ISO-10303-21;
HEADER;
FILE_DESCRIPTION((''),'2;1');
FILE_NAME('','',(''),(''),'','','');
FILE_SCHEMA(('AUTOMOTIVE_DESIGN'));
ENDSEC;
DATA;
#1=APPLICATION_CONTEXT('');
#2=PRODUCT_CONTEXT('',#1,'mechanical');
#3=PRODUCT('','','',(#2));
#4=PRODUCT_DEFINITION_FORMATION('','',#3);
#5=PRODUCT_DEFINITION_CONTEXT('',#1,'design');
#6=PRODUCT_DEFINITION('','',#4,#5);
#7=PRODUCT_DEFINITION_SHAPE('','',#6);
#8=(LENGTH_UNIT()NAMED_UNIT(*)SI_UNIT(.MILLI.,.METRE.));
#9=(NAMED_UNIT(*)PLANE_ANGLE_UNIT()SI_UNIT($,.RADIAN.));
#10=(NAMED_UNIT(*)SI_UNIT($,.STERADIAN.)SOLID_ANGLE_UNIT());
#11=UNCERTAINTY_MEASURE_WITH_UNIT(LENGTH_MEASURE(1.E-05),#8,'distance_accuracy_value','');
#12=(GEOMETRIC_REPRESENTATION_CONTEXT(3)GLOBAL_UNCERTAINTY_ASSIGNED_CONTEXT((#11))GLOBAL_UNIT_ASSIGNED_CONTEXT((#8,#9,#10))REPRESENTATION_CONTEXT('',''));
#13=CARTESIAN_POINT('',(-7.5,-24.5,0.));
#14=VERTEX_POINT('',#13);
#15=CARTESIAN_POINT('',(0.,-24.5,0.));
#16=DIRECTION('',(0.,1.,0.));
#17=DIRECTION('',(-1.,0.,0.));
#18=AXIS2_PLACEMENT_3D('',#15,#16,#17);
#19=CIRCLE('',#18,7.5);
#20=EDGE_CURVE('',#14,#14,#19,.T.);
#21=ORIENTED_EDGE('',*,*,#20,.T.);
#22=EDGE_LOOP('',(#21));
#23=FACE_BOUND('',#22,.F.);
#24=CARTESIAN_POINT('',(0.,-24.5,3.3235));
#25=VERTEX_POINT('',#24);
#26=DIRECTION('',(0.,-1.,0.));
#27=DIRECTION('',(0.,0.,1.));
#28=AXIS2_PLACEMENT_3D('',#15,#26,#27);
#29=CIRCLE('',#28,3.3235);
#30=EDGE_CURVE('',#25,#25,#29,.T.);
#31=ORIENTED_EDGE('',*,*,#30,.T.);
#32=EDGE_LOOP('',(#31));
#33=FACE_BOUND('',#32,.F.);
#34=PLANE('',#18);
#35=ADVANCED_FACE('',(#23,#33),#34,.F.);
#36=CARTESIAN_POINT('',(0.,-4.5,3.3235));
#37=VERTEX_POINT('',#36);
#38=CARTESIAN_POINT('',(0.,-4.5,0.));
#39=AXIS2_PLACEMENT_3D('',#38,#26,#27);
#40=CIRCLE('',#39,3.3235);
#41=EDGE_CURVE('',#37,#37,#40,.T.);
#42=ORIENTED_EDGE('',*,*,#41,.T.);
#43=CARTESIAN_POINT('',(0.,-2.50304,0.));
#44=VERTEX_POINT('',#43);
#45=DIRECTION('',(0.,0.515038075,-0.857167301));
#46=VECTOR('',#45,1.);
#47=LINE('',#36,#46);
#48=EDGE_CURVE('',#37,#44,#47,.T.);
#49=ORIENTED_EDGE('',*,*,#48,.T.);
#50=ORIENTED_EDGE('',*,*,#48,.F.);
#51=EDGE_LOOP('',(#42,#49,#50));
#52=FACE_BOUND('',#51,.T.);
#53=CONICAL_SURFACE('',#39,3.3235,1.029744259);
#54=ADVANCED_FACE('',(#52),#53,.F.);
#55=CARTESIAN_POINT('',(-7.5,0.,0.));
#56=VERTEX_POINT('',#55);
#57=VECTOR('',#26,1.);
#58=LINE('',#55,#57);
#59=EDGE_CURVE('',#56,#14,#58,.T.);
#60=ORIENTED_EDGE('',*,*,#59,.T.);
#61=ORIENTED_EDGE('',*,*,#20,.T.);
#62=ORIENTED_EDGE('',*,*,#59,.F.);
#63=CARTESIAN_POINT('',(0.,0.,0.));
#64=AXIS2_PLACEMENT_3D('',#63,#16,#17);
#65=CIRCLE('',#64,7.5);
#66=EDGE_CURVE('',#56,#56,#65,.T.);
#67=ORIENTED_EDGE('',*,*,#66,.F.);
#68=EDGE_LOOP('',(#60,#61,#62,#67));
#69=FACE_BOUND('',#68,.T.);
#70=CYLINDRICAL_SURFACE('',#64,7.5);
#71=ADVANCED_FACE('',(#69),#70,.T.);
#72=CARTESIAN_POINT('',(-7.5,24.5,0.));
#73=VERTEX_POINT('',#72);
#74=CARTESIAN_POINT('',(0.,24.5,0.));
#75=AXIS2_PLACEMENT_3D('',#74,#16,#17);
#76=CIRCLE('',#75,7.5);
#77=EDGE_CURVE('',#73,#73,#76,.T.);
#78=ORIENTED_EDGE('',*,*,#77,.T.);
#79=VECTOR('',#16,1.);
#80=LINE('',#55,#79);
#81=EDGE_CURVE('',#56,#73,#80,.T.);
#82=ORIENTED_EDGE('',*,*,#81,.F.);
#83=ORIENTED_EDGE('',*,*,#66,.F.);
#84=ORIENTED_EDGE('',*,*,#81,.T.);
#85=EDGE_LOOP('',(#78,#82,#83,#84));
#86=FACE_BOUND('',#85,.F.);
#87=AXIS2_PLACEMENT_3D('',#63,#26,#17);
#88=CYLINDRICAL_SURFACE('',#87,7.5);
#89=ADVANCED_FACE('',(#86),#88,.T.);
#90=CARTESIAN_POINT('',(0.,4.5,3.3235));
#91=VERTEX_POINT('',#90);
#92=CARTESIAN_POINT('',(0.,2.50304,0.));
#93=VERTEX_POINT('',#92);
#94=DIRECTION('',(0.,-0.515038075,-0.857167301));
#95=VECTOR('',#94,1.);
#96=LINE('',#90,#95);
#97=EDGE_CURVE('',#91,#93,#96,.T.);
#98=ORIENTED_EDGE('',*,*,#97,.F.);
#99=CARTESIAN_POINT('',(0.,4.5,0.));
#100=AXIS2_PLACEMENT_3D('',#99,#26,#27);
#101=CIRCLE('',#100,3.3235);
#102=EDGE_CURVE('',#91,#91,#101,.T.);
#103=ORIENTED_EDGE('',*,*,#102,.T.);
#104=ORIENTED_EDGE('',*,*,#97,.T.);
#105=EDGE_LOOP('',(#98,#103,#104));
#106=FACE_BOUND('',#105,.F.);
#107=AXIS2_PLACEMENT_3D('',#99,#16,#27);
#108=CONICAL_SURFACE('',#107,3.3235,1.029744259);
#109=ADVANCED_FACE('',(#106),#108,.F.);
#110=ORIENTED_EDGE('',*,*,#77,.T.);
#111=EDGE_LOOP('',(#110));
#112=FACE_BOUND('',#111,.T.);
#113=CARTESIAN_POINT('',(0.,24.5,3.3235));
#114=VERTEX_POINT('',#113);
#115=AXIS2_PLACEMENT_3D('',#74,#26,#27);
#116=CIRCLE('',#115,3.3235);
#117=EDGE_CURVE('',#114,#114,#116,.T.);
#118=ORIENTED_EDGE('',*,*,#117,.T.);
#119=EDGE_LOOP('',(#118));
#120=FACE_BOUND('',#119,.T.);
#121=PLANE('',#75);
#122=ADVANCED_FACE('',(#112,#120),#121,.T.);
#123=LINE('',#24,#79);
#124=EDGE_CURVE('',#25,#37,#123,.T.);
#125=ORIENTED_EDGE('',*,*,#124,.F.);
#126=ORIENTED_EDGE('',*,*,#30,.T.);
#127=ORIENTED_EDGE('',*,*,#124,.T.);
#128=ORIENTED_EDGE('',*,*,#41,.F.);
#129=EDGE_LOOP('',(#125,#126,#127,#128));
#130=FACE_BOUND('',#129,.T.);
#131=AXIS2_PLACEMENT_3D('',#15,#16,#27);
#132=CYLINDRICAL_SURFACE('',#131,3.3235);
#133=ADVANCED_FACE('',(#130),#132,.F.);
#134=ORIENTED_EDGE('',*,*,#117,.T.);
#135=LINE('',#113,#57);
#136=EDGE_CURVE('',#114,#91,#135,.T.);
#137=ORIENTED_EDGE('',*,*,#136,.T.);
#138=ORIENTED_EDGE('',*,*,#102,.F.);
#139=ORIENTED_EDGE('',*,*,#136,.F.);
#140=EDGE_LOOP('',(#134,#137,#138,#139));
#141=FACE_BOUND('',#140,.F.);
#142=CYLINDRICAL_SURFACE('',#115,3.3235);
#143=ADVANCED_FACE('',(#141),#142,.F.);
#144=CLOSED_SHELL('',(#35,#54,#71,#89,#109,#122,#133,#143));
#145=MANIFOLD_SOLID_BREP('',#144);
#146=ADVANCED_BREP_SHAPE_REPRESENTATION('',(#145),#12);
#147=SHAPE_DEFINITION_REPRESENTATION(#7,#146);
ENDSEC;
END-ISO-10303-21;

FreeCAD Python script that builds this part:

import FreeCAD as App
import Part
import Sketcher
from FreeCAD import Vector

doc = App.newDocument("Part")
body = doc.addObject("PartDesign::Body", "Body")

# Sketch on XZ plane
sketch1 = body.newObject("Sketcher::SketchObject", "Sketch")
sketch1.AttachmentSupport = (doc.getObject("XZ_Plane"), [""])
sketch1.MapMode = "FlatFace"
sketch1.addGeometry(Part.Circle(Vector(0, 0, 0), Vector(0, 0, 1), 7.5), False)
sketch1.addConstraint([
    Sketcher.Constraint("Coincident", 0, 3, -1, 1),
    Sketcher.Constraint("Diameter", 0, 15.0),
])
pad1 = body.newObject("PartDesign::Pad", "Pad")
pad1.Profile = sketch1
pad1.Length = 49
pad1.Midplane = True

# Sketch on XZ plane
sketch2 = body.newObject("Sketcher::SketchObject", "Sketch001")
sketch2.AttachmentSupport = (doc.getObject("XZ_Plane"), [""])
sketch2.MapMode = "FlatFace"
sketch2.AttachmentOffset = App.Placement(Vector(0, 0, -24.5), App.Rotation())
sketch2.addGeometry(Part.Circle(Vector(0, 0, 0), Vector(0, 0, 1), 3.3235), False)
sketch2.addConstraint([
    Sketcher.Constraint("Coincident", 0, 3, -1, 1),
    Sketcher.Constraint("Diameter", 0, 6.647),
])
doc.recompute()
hole = body.newObject("PartDesign::Hole", "Hole")
hole.Profile = sketch2
hole.ThreadType = "None"
hole.Diameter = 6.647
hole.DepthType = "Dimension"
hole.Depth = 20
hole.DrillPoint = "Angled"
hole.DrillPointAngle = 118
hole.Reversed = True
doc.recompute()

mirrored = body.newObject("PartDesign::Mirrored", "Mirrored")
mirrored.Originals = [hole]
mirrored.MirrorPlane = (doc.getObject("XZ_Plane"), [""])
body.Tip = mirrored

doc.recompute()
